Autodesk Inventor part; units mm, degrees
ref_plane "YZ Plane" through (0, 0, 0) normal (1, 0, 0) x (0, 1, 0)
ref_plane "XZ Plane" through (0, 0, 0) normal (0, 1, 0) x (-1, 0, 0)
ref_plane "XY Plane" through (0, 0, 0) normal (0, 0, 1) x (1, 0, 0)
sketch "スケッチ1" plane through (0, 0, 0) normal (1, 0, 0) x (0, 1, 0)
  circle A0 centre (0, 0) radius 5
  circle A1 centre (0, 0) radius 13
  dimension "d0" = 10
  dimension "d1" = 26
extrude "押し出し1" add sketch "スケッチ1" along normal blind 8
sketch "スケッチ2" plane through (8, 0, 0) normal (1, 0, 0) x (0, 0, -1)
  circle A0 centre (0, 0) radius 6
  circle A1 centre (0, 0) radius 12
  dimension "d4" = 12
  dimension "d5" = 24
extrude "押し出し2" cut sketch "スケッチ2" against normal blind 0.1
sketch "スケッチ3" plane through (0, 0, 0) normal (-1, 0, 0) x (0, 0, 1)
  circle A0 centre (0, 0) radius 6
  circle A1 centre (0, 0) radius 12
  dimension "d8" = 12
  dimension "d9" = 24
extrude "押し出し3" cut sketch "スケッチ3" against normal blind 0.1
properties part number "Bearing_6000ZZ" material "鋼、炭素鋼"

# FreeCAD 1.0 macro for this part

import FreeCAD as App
import Part
import Sketcher
from FreeCAD import Vector
Q = App.Units.Quantity

doc = App.newDocument("Part")
params = doc.addObject("Spreadsheet::Sheet", "Params")
for row, (alias, value) in enumerate([
    ("sketch1_diameter", "26 mm"),
    ("sketch1_diameter2", "10 mm"),
    ("pad1_length", "8 mm"),
    ("sketch2_diameter", "24 mm"),
    ("sketch2_diameter2", "12 mm"),
    ("pocket1_length", "0.1 mm"),
    ("sketch3_diameter", "24 mm"),
    ("sketch3_diameter2", "12 mm"),
    ("pocket2_length", "0.1 mm"),
], start=1):
    params.set(f"A{row}", alias)
    params.set(f"B{row}", "=" + value)
    params.setAlias(f"B{row}", alias)

body = doc.addObject("PartDesign::Body", "Body")

# Sketch on YZ plane
sketch1 = body.newObject("Sketcher::SketchObject", "Sketch")
sketch1.AttachmentSupport = (doc.getObject("YZ_Plane"), [""])
sketch1.MapMode = "FlatFace"
sketch1.addGeometry([
    Part.Circle(Vector(0, 0, 0), Vector(0, 0, 1), 13),
    Part.Circle(Vector(0, 0, 0), Vector(0, 0, 1), 5),
], False)
sketch1.addConstraint([
    Sketcher.Constraint("Coincident", 0, 3, -1, 1),
    Sketcher.Constraint("Coincident", 1, 3, -1, 1),
    Sketcher.Constraint("Diameter", 0, Q("26 mm")),
    Sketcher.Constraint("Diameter", 1, Q("10 mm")),
])
sketch1.setExpression("Constraints[2]", "Params.sketch1_diameter")
sketch1.setExpression("Constraints[3]", "Params.sketch1_diameter2")
pad1 = body.newObject("PartDesign::Pad", "Pad")
pad1.Profile = sketch1
pad1.setExpression("Length", "Params.pad1_length")

# Sketch on YZ plane
sketch2 = body.newObject("Sketcher::SketchObject", "Sketch001")
sketch2.AttachmentSupport = (doc.getObject("YZ_Plane"), [""])
sketch2.MapMode = "FlatFace"
sketch2.AttachmentOffset = App.Placement(Vector(0, 0, 8), App.Rotation())
sketch2.addGeometry([
    Part.Circle(Vector(0, 0, 0), Vector(0, 0, 1), 12),
    Part.Circle(Vector(0, 0, 0), Vector(0, 0, 1), 6),
], False)
sketch2.addConstraint([
    Sketcher.Constraint("Coincident", 0, 3, -1, 1),
    Sketcher.Constraint("Coincident", 1, 3, -1, 1),
    Sketcher.Constraint("Diameter", 0, Q("24 mm")),
    Sketcher.Constraint("Diameter", 1, Q("12 mm")),
])
sketch2.setExpression("Constraints[2]", "Params.sketch2_diameter")
sketch2.setExpression("Constraints[3]", "Params.sketch2_diameter2")
pocket1 = body.newObject("PartDesign::Pocket", "Pocket")
pocket1.Profile = sketch2
pocket1.setExpression("Length", "Params.pocket1_length")

# Sketch on YZ plane
sketch3 = body.newObject("Sketcher::SketchObject", "Sketch002")
sketch3.AttachmentSupport = (doc.getObject("YZ_Plane"), [""])
sketch3.MapMode = "FlatFace"
sketch3.addGeometry([
    Part.Circle(Vector(0, 0, 0), Vector(0, 0, 1), 12),
    Part.Circle(Vector(0, 0, 0), Vector(0, 0, 1), 6),
], False)
sketch3.addConstraint([
    Sketcher.Constraint("Coincident", 0, 3, -1, 1),
    Sketcher.Constraint("Coincident", 1, 3, -1, 1),
    Sketcher.Constraint("Diameter", 0, Q("24 mm")),
    Sketcher.Constraint("Diameter", 1, Q("12 mm")),
])
sketch3.setExpression("Constraints[2]", "Params.sketch3_diameter")
sketch3.setExpression("Constraints[3]", "Params.sketch3_diameter2")
pocket2 = body.newObject("PartDesign::Pocket", "Pocket001")
pocket2.Profile = sketch3
pocket2.setExpression("Length", "Params.pocket2_length")
pocket2.Reversed = True

doc.recompute()
